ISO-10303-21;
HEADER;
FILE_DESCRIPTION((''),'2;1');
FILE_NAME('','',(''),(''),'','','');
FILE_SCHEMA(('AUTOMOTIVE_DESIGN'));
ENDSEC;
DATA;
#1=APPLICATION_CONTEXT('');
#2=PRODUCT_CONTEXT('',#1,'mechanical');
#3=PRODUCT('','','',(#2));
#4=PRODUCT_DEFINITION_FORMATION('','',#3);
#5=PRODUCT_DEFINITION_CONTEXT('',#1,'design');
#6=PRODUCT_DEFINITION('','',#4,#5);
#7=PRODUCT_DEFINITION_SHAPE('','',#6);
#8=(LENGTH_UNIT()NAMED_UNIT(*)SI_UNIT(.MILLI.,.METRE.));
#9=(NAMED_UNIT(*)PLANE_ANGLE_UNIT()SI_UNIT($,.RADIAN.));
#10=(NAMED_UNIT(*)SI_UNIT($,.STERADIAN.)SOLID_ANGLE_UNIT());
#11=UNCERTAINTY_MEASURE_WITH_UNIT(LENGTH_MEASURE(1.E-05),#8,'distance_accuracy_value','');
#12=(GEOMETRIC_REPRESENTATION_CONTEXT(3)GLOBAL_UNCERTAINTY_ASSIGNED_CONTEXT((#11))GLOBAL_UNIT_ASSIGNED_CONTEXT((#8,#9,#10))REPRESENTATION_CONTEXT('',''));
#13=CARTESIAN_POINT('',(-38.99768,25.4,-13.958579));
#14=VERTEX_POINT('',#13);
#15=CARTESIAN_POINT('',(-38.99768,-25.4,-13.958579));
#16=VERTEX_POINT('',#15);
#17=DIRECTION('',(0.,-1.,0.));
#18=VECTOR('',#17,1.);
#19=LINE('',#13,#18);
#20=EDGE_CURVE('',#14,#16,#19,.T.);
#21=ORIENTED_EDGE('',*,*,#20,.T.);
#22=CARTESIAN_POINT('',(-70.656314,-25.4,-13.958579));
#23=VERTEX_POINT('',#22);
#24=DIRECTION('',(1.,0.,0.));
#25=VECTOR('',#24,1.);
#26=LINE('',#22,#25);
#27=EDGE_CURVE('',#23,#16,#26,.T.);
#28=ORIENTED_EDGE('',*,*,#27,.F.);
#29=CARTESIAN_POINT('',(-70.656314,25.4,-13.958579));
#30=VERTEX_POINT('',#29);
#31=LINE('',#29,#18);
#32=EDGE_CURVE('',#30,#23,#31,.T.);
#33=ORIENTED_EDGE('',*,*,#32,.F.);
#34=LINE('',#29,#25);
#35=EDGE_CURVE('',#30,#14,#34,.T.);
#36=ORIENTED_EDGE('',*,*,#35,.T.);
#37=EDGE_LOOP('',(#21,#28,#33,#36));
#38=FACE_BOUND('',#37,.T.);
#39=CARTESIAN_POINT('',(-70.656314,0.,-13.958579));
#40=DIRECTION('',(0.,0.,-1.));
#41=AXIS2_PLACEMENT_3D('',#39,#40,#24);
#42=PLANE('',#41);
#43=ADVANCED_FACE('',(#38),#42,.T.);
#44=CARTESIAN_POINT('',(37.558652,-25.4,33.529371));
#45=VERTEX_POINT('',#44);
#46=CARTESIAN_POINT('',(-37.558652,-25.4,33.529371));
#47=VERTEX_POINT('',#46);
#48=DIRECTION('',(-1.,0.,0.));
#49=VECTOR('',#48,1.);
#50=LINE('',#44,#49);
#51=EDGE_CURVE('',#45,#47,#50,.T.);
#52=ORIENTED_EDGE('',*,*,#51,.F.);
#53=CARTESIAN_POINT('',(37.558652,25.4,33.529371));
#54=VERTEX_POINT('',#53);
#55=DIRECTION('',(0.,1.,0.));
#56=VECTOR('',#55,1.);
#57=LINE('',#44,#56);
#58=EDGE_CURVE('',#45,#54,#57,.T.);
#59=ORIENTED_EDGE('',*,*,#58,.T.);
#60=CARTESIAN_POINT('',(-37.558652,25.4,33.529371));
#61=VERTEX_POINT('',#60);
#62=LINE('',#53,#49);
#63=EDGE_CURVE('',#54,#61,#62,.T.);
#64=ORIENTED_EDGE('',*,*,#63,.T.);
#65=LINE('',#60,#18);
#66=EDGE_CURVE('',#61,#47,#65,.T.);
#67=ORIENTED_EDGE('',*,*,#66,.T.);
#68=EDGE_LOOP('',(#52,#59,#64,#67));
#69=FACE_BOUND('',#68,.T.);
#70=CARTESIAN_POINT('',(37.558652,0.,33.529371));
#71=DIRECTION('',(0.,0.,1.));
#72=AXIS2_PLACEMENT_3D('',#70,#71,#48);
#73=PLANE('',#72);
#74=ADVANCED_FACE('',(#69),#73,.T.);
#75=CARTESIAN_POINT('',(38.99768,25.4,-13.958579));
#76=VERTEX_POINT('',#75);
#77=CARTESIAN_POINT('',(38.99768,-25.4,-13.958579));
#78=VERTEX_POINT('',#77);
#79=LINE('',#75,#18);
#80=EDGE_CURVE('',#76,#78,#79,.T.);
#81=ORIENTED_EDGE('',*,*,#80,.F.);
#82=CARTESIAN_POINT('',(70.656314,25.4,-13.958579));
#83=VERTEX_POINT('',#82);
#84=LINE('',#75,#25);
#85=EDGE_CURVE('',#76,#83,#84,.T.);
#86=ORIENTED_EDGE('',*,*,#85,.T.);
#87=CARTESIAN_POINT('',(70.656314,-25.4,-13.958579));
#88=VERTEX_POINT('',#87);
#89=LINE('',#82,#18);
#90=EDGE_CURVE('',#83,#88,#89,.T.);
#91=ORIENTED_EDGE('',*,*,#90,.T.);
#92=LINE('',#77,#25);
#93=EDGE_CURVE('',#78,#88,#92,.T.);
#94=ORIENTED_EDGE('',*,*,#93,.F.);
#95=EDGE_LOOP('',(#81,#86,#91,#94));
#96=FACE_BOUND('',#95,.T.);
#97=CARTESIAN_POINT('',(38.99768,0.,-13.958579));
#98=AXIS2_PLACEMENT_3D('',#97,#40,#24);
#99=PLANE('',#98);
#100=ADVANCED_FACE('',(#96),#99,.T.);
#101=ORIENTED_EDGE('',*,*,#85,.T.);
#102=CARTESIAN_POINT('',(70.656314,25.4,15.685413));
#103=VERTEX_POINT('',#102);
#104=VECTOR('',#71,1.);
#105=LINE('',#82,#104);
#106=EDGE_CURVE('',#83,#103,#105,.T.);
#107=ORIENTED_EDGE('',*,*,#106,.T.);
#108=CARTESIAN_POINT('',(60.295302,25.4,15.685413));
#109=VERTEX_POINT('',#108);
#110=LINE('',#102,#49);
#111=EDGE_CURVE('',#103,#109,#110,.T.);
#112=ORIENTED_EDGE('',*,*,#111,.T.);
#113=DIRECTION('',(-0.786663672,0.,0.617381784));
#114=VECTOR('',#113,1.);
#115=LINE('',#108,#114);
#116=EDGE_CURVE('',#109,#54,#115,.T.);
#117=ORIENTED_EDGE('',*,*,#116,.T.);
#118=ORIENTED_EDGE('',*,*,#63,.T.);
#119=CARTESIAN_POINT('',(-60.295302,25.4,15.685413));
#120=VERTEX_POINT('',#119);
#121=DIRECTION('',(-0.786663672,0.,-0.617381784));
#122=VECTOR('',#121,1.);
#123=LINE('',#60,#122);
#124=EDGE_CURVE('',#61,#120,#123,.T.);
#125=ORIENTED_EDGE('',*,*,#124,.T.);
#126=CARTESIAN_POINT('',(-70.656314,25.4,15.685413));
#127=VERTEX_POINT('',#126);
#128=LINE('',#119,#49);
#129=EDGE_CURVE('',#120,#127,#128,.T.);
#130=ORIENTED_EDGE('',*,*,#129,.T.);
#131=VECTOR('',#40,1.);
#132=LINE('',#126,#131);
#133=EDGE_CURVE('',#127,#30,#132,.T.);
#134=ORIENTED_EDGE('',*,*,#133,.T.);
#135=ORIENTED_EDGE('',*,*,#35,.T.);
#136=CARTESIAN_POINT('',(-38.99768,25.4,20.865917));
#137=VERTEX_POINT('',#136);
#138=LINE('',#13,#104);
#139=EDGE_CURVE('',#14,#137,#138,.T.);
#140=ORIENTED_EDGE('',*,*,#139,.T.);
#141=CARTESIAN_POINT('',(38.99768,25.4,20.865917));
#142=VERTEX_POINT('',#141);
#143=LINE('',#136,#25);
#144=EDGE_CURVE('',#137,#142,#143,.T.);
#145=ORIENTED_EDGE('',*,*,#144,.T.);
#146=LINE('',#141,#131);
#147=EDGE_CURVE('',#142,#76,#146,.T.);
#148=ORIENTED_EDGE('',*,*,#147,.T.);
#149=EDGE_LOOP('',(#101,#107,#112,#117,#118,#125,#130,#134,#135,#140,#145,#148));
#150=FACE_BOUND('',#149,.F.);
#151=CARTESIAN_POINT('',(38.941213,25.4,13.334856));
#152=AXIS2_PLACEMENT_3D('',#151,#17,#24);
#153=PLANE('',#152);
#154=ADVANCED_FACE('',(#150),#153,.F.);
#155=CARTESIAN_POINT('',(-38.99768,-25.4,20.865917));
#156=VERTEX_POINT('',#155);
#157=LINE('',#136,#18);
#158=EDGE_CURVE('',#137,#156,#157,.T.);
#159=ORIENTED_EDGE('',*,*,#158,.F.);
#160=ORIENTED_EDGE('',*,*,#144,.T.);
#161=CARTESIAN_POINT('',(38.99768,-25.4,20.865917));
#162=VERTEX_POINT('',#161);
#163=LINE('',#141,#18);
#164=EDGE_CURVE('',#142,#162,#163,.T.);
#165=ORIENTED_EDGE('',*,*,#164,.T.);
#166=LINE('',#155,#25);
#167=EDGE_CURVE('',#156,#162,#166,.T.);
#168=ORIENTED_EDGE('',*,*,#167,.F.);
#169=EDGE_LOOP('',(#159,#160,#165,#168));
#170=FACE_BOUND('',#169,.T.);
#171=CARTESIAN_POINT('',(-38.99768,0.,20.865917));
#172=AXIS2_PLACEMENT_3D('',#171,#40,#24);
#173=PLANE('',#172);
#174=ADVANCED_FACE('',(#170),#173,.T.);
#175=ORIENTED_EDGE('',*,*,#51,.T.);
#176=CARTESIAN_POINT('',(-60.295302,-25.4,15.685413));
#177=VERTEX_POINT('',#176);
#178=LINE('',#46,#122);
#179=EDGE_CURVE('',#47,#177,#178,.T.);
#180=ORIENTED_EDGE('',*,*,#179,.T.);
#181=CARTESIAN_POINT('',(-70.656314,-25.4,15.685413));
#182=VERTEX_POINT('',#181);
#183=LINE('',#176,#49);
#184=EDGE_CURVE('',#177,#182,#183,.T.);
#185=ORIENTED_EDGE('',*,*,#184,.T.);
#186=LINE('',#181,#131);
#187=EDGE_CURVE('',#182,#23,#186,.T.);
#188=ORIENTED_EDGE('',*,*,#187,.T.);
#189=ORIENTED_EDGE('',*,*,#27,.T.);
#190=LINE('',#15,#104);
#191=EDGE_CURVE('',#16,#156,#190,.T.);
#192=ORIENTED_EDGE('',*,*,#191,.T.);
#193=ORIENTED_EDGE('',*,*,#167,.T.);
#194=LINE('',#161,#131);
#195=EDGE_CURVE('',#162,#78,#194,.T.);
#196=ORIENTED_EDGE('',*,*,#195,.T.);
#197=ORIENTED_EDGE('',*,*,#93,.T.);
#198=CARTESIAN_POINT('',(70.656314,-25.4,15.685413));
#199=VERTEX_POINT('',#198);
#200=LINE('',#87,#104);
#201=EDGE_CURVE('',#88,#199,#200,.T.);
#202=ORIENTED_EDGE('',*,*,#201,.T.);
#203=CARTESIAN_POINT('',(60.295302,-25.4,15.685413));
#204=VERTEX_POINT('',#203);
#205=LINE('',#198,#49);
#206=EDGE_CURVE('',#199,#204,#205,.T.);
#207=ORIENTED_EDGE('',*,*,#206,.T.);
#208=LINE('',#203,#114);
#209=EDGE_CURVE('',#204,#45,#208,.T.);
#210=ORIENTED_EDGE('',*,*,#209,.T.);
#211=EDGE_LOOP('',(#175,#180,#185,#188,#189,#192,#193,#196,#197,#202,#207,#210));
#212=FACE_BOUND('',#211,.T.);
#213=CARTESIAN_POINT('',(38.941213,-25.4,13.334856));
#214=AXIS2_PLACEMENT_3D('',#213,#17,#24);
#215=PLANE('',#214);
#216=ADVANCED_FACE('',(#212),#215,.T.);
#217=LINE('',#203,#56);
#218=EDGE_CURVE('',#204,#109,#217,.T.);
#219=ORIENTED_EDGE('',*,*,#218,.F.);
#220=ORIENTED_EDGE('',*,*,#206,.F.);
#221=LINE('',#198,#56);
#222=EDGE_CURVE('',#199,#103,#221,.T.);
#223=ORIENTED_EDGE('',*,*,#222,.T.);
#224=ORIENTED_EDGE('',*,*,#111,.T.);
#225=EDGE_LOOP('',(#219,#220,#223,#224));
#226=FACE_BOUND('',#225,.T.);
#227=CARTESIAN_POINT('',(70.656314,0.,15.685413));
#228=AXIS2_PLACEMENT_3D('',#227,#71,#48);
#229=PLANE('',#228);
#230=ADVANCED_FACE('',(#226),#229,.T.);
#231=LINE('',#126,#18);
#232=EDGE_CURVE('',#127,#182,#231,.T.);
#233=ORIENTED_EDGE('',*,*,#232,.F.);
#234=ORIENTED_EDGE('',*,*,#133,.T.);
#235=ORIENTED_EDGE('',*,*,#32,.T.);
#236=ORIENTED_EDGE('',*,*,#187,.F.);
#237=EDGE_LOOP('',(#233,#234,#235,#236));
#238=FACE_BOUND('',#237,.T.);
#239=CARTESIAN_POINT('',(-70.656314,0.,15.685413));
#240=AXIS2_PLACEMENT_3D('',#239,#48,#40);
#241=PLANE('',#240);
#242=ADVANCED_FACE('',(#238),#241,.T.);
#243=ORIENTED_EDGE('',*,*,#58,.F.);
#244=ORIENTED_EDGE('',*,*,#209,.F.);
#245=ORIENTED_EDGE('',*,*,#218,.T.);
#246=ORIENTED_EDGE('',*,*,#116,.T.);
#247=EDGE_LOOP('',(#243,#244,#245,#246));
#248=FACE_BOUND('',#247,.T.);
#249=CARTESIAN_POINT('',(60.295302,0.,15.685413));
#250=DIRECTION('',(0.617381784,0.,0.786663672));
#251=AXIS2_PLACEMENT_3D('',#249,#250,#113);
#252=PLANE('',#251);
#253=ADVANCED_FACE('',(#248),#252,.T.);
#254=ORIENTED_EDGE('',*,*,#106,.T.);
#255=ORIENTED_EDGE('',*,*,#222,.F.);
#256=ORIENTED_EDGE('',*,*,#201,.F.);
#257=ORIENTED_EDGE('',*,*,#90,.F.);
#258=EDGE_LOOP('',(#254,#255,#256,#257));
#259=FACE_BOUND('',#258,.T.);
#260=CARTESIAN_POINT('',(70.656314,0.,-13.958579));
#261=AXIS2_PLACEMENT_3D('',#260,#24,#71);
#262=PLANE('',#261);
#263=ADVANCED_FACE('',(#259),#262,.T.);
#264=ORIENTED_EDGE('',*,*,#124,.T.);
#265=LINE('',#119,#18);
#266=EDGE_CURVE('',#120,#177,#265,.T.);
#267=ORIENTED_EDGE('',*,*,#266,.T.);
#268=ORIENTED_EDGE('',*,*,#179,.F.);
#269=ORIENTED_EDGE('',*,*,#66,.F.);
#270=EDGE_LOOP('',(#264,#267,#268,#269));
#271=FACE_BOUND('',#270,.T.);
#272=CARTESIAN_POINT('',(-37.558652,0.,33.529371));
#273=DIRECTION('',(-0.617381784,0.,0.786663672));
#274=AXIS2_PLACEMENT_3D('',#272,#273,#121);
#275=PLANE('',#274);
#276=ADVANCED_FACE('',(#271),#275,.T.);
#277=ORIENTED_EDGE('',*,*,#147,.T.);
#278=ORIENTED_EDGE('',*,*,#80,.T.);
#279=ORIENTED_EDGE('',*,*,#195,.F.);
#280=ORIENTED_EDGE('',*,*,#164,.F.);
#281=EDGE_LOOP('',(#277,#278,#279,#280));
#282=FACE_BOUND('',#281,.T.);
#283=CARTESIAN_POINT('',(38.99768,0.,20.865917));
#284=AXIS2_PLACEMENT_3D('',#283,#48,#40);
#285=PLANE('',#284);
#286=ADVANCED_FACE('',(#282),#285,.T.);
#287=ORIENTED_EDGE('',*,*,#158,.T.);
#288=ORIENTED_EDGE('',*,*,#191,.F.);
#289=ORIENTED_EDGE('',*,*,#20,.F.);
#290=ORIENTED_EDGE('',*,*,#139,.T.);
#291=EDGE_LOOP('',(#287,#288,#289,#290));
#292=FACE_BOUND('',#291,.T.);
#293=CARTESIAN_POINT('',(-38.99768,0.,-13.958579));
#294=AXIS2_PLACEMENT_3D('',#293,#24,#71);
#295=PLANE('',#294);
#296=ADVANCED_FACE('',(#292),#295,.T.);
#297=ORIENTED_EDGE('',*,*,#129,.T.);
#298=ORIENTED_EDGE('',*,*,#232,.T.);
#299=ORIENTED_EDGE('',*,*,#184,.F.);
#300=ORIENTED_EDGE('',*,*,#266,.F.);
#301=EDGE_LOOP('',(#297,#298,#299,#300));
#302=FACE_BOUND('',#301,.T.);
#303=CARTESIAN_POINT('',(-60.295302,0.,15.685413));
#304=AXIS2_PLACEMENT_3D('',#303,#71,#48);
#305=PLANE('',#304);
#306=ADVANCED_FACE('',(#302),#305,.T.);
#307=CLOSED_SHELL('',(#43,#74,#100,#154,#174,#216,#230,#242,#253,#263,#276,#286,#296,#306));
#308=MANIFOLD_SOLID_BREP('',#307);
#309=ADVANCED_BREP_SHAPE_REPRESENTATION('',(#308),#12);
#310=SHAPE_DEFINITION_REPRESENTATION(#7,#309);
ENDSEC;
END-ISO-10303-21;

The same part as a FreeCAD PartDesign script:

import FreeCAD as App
import Part
import Sketcher
from FreeCAD import Vector
Q = App.Units.Quantity


def add_polygon(sketch, points):
    """Adds a closed chain of lines whose ends are joined by coincident constraints."""
    first, n = sketch.GeometryCount, len(points)
    for a, b in zip(points, points[1:] + points[:1]):
        sketch.addGeometry(Part.LineSegment(App.Vector(*a, 0), App.Vector(*b, 0)), False)
    for i in range(n):
        sketch.addConstraint(Sketcher.Constraint("Coincident", first + i, 2, first + (i + 1) % n, 1))

doc = App.newDocument("Part")
body = doc.addObject("PartDesign::Body", "Body")

sketch1 = body.newObject("Sketcher::SketchObject", "Sketch")
sketch1.AttachmentSupport = (doc.getObject("XZ_Plane"), [""])
sketch1.MapMode = "FlatFace"
add_polygon(sketch1, [(38, 34), (-38, 34), (-60, 16), (-71, 16), (-71, -14), (-39, -14), (-39, 21), (39, 21), (39, -14), (71, -14), (71, 16), (60, 16)])
sketch1.addConstraint([
    Sketcher.Constraint("Horizontal", 0),
    Sketcher.Constraint("Horizontal", 2),
    Sketcher.Constraint("Vertical", 3),
    Sketcher.Constraint("Horizontal", 4),
    Sketcher.Constraint("Vertical", 5),
    Sketcher.Constraint("Horizontal", 6),
    Sketcher.Constraint("Vertical", 7),
    Sketcher.Constraint("Horizontal", 8),
    Sketcher.Constraint("Vertical", 9),
    Sketcher.Constraint("Horizontal", 10),
    Sketcher.Constraint("Symmetric", 4, 2, 7, 2, -2),
    Sketcher.Constraint("Symmetric", 2, 2, 9, 2, -2),
    Sketcher.Constraint("Equal", 2, 10),
    Sketcher.Constraint("Equal", 1, 11),
    Sketcher.Constraint("DistanceX", 2, 2, 2, 1, 10.361012),
    Sketcher.Constraint("DistanceX", 6, 1, 6, 2, 77.99536),
    Sketcher.Constraint("Distance", 1, 28.902631),
    Sketcher.Constraint("DistanceX", 0, 2, 0, 1, 75.117304),
    Sketcher.Constraint("DistanceX", 4, 1, 4, 2, 31.658634),
    Sketcher.Constraint("DistanceY", 3, 2, 3, 1, 29.643992),
    Sketcher.Constraint("DistanceY", 5, 1, 5, 2, 34.824496),
    Sketcher.Constraint("DistanceY", -1, 1, 0, 2, 33.529371),
])
pad1 = body.newObject("PartDesign::Pad", "Pad")
pad1.Profile = sketch1
pad1.Type = "TwoLengths"
pad1.Length = Q("1 in")
pad1.Length2 = Q("1 in")

doc.recompute()
